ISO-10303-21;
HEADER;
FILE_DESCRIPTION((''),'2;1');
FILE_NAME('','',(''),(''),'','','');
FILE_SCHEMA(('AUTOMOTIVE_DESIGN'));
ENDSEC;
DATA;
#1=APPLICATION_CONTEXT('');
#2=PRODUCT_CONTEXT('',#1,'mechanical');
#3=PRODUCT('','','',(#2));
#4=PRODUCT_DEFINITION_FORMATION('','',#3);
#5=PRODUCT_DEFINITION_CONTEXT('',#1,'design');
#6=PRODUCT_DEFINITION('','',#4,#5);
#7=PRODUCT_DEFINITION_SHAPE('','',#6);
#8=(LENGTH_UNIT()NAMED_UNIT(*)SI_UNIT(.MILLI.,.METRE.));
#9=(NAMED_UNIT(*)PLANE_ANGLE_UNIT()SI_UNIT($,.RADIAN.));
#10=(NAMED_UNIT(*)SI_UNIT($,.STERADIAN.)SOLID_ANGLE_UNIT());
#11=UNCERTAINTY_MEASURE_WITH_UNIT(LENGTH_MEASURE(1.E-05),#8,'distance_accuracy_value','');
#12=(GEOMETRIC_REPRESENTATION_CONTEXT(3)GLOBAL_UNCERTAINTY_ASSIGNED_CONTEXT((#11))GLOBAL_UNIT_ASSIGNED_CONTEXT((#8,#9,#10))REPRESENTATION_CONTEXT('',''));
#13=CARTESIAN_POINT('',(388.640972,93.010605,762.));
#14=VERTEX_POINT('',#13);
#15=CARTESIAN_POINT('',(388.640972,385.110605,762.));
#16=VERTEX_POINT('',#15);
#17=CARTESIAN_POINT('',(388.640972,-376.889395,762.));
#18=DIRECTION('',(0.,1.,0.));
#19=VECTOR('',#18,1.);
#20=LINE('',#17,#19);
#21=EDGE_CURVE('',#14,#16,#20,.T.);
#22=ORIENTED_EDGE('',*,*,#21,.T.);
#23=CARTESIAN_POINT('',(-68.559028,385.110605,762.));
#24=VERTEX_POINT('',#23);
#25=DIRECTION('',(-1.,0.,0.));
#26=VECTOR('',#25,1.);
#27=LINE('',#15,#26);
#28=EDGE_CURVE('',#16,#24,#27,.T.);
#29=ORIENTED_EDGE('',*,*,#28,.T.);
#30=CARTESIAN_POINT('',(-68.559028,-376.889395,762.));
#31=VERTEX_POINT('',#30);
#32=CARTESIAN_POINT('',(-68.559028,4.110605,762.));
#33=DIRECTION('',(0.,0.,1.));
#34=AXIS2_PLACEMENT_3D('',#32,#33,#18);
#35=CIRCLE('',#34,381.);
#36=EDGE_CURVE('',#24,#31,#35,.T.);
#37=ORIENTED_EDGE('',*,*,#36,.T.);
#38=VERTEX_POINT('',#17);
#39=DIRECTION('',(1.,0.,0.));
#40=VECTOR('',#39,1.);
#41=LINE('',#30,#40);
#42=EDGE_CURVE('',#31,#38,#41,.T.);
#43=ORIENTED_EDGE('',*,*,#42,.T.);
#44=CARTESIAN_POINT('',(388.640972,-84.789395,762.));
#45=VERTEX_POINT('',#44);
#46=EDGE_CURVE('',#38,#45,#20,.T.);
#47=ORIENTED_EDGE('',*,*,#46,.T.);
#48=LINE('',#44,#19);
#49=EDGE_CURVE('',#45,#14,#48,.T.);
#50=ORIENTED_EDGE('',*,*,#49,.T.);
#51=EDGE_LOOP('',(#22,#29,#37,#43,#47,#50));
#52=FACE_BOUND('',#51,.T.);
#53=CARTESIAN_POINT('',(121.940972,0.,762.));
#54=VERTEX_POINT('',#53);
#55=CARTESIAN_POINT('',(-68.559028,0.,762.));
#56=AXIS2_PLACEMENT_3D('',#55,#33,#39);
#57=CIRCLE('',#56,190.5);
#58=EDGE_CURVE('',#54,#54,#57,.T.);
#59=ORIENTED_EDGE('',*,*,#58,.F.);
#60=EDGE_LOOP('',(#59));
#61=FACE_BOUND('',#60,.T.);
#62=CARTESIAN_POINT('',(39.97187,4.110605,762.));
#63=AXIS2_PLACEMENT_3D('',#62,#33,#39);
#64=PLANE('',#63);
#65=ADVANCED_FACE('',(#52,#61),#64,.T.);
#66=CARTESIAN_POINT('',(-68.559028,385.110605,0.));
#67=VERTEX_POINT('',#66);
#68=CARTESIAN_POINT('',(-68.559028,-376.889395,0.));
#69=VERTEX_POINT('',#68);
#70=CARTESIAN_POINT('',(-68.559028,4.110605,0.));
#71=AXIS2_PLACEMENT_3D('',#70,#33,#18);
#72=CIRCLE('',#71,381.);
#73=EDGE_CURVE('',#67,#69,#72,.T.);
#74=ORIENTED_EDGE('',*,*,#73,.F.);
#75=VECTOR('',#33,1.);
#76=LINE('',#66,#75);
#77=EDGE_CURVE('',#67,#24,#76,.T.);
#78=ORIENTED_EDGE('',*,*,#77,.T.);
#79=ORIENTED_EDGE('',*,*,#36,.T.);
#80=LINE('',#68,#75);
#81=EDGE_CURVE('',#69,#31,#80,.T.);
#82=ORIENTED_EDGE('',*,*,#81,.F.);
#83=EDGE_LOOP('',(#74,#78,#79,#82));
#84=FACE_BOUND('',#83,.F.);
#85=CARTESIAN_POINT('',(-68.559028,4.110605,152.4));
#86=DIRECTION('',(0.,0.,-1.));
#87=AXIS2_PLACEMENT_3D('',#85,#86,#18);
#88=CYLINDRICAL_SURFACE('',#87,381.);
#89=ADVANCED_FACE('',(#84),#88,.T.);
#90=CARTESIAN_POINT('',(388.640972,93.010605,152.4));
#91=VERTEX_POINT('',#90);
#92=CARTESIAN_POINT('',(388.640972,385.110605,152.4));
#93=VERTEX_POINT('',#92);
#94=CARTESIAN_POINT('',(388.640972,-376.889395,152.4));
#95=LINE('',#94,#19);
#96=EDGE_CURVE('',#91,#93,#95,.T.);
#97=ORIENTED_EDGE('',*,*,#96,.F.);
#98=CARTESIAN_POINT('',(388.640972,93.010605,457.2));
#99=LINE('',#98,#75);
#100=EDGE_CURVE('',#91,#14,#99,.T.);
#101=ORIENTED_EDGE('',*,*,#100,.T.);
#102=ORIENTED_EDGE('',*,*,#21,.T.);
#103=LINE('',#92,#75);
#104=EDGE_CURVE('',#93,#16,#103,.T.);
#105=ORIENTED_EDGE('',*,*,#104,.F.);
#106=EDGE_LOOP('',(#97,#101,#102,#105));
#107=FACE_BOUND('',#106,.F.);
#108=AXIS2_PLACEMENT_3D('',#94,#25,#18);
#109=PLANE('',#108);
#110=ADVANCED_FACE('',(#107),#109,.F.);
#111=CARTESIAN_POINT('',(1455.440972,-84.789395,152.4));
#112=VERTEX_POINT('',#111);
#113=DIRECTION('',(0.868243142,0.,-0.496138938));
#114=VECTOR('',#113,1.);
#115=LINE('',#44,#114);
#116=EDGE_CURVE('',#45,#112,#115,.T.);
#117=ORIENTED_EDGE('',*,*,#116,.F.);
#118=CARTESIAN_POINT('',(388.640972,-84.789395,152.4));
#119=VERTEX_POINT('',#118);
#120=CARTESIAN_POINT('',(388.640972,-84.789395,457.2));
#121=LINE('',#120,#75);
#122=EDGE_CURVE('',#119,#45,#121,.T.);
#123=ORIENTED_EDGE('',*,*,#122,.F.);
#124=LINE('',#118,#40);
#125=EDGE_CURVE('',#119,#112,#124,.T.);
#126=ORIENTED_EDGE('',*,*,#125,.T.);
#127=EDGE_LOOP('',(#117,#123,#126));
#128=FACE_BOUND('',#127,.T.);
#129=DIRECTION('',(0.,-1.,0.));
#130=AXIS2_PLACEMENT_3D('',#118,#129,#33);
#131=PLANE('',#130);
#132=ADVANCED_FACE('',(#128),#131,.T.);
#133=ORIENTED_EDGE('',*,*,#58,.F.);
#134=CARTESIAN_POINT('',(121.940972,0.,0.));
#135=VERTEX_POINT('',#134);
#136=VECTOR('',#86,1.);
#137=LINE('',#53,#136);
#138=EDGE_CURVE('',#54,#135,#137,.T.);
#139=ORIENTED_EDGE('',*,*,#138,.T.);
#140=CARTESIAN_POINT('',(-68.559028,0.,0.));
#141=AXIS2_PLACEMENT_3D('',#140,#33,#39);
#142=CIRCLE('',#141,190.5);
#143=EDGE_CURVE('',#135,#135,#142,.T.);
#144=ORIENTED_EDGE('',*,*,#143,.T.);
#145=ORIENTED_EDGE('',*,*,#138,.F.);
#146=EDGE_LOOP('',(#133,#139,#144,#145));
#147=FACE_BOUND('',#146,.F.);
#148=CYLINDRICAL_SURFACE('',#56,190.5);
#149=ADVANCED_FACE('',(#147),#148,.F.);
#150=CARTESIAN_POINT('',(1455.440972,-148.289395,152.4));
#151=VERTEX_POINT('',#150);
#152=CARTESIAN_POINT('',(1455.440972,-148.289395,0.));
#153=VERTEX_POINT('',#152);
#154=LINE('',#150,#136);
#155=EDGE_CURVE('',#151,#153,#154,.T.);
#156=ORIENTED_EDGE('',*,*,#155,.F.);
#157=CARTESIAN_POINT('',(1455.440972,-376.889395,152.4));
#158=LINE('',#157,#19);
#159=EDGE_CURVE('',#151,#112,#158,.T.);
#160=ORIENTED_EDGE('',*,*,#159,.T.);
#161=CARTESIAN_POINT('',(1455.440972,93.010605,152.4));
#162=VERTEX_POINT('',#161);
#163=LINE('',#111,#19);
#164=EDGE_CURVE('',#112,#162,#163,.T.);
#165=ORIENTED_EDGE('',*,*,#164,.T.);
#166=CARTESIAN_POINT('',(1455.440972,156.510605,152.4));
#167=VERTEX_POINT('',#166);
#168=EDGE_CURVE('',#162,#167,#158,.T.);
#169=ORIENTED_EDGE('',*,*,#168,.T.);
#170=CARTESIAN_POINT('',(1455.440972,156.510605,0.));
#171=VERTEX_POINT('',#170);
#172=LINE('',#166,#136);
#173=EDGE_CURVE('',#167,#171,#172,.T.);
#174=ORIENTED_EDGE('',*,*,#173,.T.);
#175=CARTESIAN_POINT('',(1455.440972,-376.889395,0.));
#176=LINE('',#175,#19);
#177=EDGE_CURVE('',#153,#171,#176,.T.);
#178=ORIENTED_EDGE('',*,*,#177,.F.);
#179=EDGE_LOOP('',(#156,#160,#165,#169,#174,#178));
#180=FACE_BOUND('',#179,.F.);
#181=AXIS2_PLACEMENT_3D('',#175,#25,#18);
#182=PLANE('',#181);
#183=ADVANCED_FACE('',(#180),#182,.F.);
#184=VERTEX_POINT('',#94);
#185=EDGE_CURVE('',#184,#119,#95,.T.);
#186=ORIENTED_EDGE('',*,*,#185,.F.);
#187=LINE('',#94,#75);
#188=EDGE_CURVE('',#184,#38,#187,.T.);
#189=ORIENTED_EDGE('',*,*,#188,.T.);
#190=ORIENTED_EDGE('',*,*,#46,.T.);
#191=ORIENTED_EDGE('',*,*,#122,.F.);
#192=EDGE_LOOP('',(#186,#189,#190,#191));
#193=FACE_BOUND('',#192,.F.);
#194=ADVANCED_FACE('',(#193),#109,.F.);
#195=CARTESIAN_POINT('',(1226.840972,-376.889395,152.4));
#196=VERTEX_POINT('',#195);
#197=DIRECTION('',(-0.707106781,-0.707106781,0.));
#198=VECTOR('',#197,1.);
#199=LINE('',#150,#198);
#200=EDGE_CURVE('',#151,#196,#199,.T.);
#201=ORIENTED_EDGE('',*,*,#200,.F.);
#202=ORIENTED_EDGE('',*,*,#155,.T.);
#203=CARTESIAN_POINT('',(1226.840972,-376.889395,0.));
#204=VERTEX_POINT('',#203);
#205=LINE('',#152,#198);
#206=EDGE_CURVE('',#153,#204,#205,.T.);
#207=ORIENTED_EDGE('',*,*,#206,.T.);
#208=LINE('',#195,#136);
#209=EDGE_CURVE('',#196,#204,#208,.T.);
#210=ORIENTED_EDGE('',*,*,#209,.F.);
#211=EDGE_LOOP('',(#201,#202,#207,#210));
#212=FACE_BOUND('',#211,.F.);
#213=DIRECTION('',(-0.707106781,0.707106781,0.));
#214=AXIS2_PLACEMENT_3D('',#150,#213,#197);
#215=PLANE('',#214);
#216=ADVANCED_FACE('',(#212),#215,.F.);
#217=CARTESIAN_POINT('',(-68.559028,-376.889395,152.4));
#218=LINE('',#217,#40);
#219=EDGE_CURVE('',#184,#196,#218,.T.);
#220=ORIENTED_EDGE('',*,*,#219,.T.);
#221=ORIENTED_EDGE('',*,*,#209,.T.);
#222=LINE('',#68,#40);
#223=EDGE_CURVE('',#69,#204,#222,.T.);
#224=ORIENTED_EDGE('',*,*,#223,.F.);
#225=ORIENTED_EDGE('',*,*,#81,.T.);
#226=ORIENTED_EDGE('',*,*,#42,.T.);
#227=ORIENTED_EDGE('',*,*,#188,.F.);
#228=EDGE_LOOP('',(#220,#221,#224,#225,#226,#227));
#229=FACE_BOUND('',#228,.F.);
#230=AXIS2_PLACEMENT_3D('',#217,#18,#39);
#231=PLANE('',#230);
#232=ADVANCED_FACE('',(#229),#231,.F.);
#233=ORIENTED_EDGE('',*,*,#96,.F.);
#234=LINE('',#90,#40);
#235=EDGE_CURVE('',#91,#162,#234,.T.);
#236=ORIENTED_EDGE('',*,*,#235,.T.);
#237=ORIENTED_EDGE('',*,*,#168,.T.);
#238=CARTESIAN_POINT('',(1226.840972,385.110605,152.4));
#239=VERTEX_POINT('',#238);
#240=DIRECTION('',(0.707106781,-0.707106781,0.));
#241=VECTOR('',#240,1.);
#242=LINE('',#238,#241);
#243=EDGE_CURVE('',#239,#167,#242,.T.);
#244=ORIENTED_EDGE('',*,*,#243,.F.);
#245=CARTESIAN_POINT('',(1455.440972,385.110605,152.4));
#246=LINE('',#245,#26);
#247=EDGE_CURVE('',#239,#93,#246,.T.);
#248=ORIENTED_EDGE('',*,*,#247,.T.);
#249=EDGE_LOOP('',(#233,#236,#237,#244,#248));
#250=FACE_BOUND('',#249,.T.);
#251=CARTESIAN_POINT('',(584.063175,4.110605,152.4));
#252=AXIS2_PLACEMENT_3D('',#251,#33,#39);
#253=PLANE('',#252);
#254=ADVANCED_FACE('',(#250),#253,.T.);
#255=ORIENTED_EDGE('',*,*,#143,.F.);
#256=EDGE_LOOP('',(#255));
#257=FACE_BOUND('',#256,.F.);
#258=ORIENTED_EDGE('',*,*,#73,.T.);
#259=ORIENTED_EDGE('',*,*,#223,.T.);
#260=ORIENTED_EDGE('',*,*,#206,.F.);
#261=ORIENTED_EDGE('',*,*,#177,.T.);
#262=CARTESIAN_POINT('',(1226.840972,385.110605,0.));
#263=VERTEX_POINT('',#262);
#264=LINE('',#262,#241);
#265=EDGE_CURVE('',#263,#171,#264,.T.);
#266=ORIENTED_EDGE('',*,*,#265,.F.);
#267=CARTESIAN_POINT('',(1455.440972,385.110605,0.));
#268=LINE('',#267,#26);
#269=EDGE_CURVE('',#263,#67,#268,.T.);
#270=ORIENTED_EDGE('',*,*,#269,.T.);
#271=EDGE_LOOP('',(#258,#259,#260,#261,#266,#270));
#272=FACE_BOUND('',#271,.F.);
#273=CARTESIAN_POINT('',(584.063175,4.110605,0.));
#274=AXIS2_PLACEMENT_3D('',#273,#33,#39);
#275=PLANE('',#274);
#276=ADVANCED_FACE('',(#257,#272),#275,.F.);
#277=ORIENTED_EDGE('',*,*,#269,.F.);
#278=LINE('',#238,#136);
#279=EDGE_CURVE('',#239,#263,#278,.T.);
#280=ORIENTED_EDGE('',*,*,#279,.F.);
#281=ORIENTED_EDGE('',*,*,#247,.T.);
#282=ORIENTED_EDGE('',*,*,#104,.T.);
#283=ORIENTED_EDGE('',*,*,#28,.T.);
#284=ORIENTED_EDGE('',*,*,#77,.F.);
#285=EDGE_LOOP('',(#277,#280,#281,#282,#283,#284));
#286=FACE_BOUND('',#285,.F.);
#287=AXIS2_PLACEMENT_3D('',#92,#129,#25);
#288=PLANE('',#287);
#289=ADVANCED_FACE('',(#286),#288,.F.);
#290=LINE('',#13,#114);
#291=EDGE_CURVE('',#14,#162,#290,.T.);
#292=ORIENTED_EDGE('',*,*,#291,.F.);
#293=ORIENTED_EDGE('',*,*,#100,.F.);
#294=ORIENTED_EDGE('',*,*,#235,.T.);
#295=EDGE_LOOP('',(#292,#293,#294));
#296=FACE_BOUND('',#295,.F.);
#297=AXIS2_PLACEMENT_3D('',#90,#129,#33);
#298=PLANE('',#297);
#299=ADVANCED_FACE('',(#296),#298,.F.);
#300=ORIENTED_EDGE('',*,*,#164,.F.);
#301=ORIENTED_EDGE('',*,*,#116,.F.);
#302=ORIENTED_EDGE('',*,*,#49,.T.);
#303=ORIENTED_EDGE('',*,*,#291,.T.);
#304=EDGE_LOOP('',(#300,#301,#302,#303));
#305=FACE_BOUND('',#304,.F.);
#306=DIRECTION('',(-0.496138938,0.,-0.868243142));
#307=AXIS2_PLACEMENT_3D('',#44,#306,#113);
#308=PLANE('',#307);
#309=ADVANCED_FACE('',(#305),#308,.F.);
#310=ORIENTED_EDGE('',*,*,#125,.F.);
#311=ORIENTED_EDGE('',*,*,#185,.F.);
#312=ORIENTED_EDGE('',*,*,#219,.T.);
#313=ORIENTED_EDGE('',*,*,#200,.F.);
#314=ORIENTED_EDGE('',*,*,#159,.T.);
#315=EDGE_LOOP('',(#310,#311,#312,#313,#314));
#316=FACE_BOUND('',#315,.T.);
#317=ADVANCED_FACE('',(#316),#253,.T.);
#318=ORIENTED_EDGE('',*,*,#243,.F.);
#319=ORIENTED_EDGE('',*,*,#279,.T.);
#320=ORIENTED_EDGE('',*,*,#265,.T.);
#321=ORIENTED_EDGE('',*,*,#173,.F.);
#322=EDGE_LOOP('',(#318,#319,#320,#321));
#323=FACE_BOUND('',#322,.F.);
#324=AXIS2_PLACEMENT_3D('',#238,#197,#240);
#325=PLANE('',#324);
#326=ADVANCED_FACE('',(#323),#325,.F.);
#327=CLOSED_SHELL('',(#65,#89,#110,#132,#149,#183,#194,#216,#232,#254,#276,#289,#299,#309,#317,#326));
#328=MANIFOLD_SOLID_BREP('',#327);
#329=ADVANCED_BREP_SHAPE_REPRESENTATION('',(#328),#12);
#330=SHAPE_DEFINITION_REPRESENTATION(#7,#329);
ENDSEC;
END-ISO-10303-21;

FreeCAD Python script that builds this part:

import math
import FreeCAD as App
import Part
import Sketcher
from FreeCAD import Vector
Q = App.Units.Quantity


def add_polygon(sketch, points):
    """Adds a closed chain of lines whose ends are joined by coincident constraints."""
    first, n = sketch.GeometryCount, len(points)
    for a, b in zip(points, points[1:] + points[:1]):
        sketch.addGeometry(Part.LineSegment(App.Vector(*a, 0), App.Vector(*b, 0)), False)
    for i in range(n):
        sketch.addConstraint(Sketcher.Constraint("Coincident", first + i, 2, first + (i + 1) % n, 1))

doc = App.newDocument("Part")
body = doc.addObject("PartDesign::Body", "Body")

# Sketch on XY plane
sketch1 = body.newObject("Sketcher::SketchObject", "Sketch")
sketch1.AttachmentSupport = (doc.getObject("XY_Plane"), [""])
sketch1.MapMode = "FlatFace"
sketch1.addGeometry(Part.LineSegment(Vector(1455, 385, 0), Vector(-69, 385, 0)), False)
sketch1.addGeometry(Part.ArcOfCircle(Part.Circle(Vector(-69, 4, 0), Vector(0, 0, 1), 381), math.radians(90), math.radians(270)), False)
sketch1.addGeometry(Part.LineSegment(Vector(-69, -377, 0), Vector(1455, -377, 0)), False)
sketch1.addGeometry(Part.LineSegment(Vector(1455, -377, 0), Vector(1455, 385, 0)), False)
sketch1.addConstraint(Sketcher.Constraint("Tangent", 0, 2, 1, 1))
sketch1.addConstraint(Sketcher.Constraint("Tangent", 1, 2, 2, 1))
sketch1.addConstraint(Sketcher.Constraint("Coincident", 2, 2, 3, 1))
sketch1.addConstraint(Sketcher.Constraint("Coincident", 3, 2, 0, 1))
sketch1.addConstraint(Sketcher.Constraint("Horizontal", 0))
sketch1.addConstraint(Sketcher.Constraint("Horizontal", 2))
sketch1.addConstraint(Sketcher.Constraint("Vertical", 3))
sketch1.addConstraint(Sketcher.Constraint("Radius", 1, Q("15 in")))
sketch1.addConstraint(Sketcher.Constraint("DistanceX", 0, 2, 0, 1, Q("60 in")))
sketch1.addConstraint(Sketcher.Constraint("DistanceX", -1, 1, 2, 2, 1455.440972))
sketch1.addConstraint(Sketcher.Constraint("DistanceY", -1, 1, 1, 3, 4.110605))
pad1 = body.newObject("PartDesign::Pad", "Pad")
pad1.Profile = sketch1
pad1.Length = Q("6 in")

# Sketch on XY plane
sketch2 = body.newObject("Sketcher::SketchObject", "Sketch001")
sketch2.AttachmentSupport = (doc.getObject("XY_Plane"), [""])
sketch2.MapMode = "FlatFace"
sketch2.AttachmentOffset = App.Placement(Vector(0, 0, 6 * 25.4), App.Rotation())
sketch2.addGeometry(Part.LineSegment(Vector(389, 385, 0), Vector(-69, 385, 0)), False)
sketch2.addGeometry(Part.ArcOfCircle(Part.Circle(Vector(-69, 4, 0), Vector(0, 0, 1), 381), math.radians(90), math.radians(270)), False)
sketch2.addGeometry(Part.LineSegment(Vector(-69, -377, 0), Vector(389, -377, 0)), False)
sketch2.addGeometry(Part.LineSegment(Vector(389, -377, 0), Vector(389, 385, 0)), False)
sketch2.addConstraint(Sketcher.Constraint("Tangent", 0, 2, 1, 1))
sketch2.addConstraint(Sketcher.Constraint("Tangent", 1, 2, 2, 1))
sketch2.addConstraint(Sketcher.Constraint("Coincident", 2, 2, 3, 1))
sketch2.addConstraint(Sketcher.Constraint("Coincident", 3, 2, 0, 1))
sketch2.addConstraint(Sketcher.Constraint("Horizontal", 0))
sketch2.addConstraint(Sketcher.Constraint("Horizontal", 2))
sketch2.addConstraint(Sketcher.Constraint("Vertical", 3))
sketch2.addConstraint(Sketcher.Constraint("Radius", 1, Q("15 in")))
sketch2.addConstraint(Sketcher.Constraint("DistanceX", 0, 2, 0, 1, Q("18 in")))
sketch2.addConstraint(Sketcher.Constraint("DistanceX", -1, 1, 2, 2, 388.640972))
sketch2.addConstraint(Sketcher.Constraint("DistanceY", -1, 1, 1, 3, 4.110605))
pad2 = body.newObject("PartDesign::Pad", "Pad001")
pad2.Profile = sketch2
pad2.Length = Q("24 in")

# Sketch on YZ plane
sketch3 = body.newObject("Sketcher::SketchObject", "Sketch002")
sketch3.AttachmentSupport = (doc.getObject("YZ_Plane"), [""])
sketch3.MapMode = "FlatFace"
sketch3.AttachmentOffset = App.Placement(Vector(0, 0, 388.640972), App.Rotation())
add_polygon(sketch3, [(-85, 762), (-85, 152), (93, 152), (93, 762)])  # lines 0-3
sketch3.addConstraint(Sketcher.Constraint("Vertical", 0))
sketch3.addConstraint(Sketcher.Constraint("Horizontal", 1))
sketch3.addConstraint(Sketcher.Constraint("Vertical", 2))
sketch3.addConstraint(Sketcher.Constraint("Horizontal", 3))
sketch3.addConstraint(Sketcher.Constraint("DistanceX", 1, 1, 1, 2, Q("7 in")))
sketch3.addConstraint(Sketcher.Constraint("DistanceY", 0, 2, 0, 1, Q("24 in")))
sketch3.addConstraint(Sketcher.Constraint("DistanceY", -1, 1, 0, 2, Q("6 in")))
sketch3.addConstraint(Sketcher.Constraint("DistanceX", 0, 2, -1, 1, 84.789395))
pad3 = body.newObject("PartDesign::Pad", "Pad002")
pad3.Profile = sketch3
pad3.Length = Q("42 in")

# Sketch on XZ plane
sketch4 = body.newObject("Sketcher::SketchObject", "Sketch003")
sketch4.AttachmentSupport = (doc.getObject("XZ_Plane"), [""])
sketch4.MapMode = "FlatFace"
sketch4.AttachmentOffset = App.Placement(Vector(0, 0, 84.789395), App.Rotation())
add_polygon(sketch4, [(1455, 762), (389, 762), (1455, 152)])  # lines 0-2
sketch4.addConstraint(Sketcher.Constraint("Horizontal", 0))
sketch4.addConstraint(Sketcher.Constraint("Vertical", 2))
sketch4.addConstraint(Sketcher.Constraint("DistanceX", 0, 2, 0, 1, Q("42 in")))
sketch4.addConstraint(Sketcher.Constraint("DistanceY", 2, 1, 2, 2, Q("24 in")))
sketch4.addConstraint(Sketcher.Constraint("DistanceY", -1, 1, 0, 2, Q("30 in")))
sketch4.addConstraint(Sketcher.Constraint("DistanceX", -1, 1, 0, 2, 388.640972))
pocket1 = body.newObject("PartDesign::Pocket", "Pocket")
pocket1.Profile = sketch4
pocket1.Length = Q("7 in")

# Sketch on XY plane
sketch5 = body.newObject("Sketcher::SketchObject", "Sketch004")
sketch5.AttachmentSupport = (doc.getObject("XY_Plane"), [""])
sketch5.MapMode = "FlatFace"
sketch5.AttachmentOffset = App.Placement(Vector(0, 0, 6 * 25.4), App.Rotation())
add_polygon(sketch5, [(1455, 157), (1455, 385), (1227, 385)])  # lines 0-2
add_polygon(sketch5, [(1227, -377), (1455, -377), (1455, -148)])  # lines 3-5
sketch5.addConstraint(Sketcher.Constraint("Vertical", 0))
sketch5.addConstraint(Sketcher.Constraint("Horizontal", 1))
sketch5.addConstraint(Sketcher.Constraint("Horizontal", 3))
sketch5.addConstraint(Sketcher.Constraint("Vertical", 4))
sketch5.addConstraint(Sketcher.Constraint("Perpendicular", 2, 5))
sketch5.addConstraint(Sketcher.Constraint("Vertical", 2, 2, 3, 2))
sketch5.addConstraint(Sketcher.Constraint("Vertical", 1, 2, 5, 2))
sketch5.addConstraint(Sketcher.Constraint("Equal", 3, 0))
sketch5.addConstraint(Sketcher.Constraint("DistanceX", 1, 2, 1, 1, Q("9 in")))
sketch5.addConstraint(Sketcher.Constraint("DistanceY", 3, 2, 2, 2, Q("21 in")))
sketch5.addConstraint(Sketcher.Constraint("DistanceX", -1, 1, 0, 2, 1455.440972))
sketch5.addConstraint(Sketcher.Constraint("DistanceY", -1, 1, 0, 2, 385.110605))
pocket2 = body.newObject("PartDesign::Pocket", "Pocket001")
pocket2.Profile = sketch5
pocket2.Length = Q("6 in")

# Sketch on XY plane
sketch6 = body.newObject("Sketcher::SketchObject", "Sketch005")
sketch6.AttachmentSupport = (doc.getObject("XY_Plane"), [""])
sketch6.MapMode = "FlatFace"
sketch6.AttachmentOffset = App.Placement(Vector(0, 0, 30 * 25.4), App.Rotation())
sketch6.addGeometry(Part.Circle(Vector(-69, 0, 0), Vector(0, 0, 1), 190), False)
sketch6.addConstraint(Sketcher.Constraint("PointOnObject", 0, 3, -1))
sketch6.addConstraint(Sketcher.Constraint("Diameter", 0, Q("15 in")))
sketch6.addConstraint(Sketcher.Constraint("DistanceX", 0, 3, -1, 1, 68.559028))
pocket3 = body.newObject("PartDesign::Pocket", "Pocket002")
pocket3.Profile = sketch6
pocket3.Length = Q("30 in")

doc.recompute()
